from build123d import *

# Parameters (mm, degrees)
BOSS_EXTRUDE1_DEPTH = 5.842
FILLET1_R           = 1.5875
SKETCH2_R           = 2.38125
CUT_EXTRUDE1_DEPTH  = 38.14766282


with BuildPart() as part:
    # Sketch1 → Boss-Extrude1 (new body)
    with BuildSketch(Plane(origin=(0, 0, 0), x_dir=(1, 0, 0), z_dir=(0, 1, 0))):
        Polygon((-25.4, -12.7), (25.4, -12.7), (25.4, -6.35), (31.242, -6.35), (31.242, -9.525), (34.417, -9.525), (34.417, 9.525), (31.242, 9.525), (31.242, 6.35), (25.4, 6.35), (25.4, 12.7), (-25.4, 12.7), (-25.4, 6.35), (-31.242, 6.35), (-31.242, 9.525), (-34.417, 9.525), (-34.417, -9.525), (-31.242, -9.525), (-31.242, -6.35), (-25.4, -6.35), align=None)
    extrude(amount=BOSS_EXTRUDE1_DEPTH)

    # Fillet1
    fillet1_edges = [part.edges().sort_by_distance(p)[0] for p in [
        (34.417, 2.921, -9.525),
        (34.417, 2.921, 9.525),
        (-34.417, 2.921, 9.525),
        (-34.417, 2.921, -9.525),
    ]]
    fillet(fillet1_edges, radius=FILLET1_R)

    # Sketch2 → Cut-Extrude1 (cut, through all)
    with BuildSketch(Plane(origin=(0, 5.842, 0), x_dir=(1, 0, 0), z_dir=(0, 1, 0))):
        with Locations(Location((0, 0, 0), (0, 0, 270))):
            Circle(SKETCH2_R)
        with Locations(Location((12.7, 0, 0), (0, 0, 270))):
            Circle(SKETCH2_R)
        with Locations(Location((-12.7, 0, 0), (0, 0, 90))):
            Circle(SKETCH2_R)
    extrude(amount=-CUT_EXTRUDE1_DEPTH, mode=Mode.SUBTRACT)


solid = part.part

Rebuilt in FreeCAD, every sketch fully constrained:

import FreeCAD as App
import Part
import Sketcher
Q = App.Units.Quantity


def edges_at(feature, points):
    """Names of the edges that pass closest to the given points."""
    edges = feature.Shape.Edges
    near = lambda p: min(range(len(edges)), key=lambda i: edges[i].distToShape(Part.Vertex(*p))[0])
    return sorted({f"Edge{near(p) + 1}" for p in points})


def add_polygon(sketch, points):
    """Adds a closed chain of lines whose ends are joined by coincident constraints."""
    first, n = sketch.GeometryCount, len(points)
    for a, b in zip(points, points[1:] + points[:1]):
        sketch.addGeometry(Part.LineSegment(App.Vector(*a, 0), App.Vector(*b, 0)), False)
    for i in range(n):
        sketch.addConstraint(Sketcher.Constraint("Coincident", first + i, 2, first + (i + 1) % n, 1))

doc = App.newDocument("Part")
body = doc.addObject("PartDesign::Body", "Body")

# Sketch on XZ plane
sketch1 = doc.addObject("Sketcher::SketchObject", "Sketch")
body.addObject(sketch1)
sketch1.AttachmentSupport = (doc.XZ_Plane, [""])
sketch1.MapMode = "FlatFace"
add_polygon(sketch1, [(-25.4, 12.7), (25.4, 12.7), (25.4, 6.3), (31.2, 6.3), (31.2, 9.5), (34.4, 9.5), (34.4, -9.5), (31.2, -9.5), (31.2, -6.3), (25.4, -6.3), (25.4, -12.7), (-25.4, -12.7), (-25.4, -6.3), (-31.2, -6.3), (-31.2, -9.5), (-34.4, -9.5), (-34.4, 9.5), (-31.2, 9.5), (-31.2, 6.3), (-25.4, 6.3)])  # lines 0-19
sketch1.addConstraint([
    Sketcher.Constraint("Horizontal", 0),
    Sketcher.Constraint("Vertical", 1),
    Sketcher.Constraint("Horizontal", 2),
    Sketcher.Constraint("Vertical", 3),
    Sketcher.Constraint("Horizontal", 4),
    Sketcher.Constraint("Vertical", 5),
    Sketcher.Constraint("Horizontal", 6),
    Sketcher.Constraint("Vertical", 7),
    Sketcher.Constraint("Horizontal", 8),
    Sketcher.Constraint("Vertical", 9),
    Sketcher.Constraint("Horizontal", 10),
    Sketcher.Constraint("Vertical", 11),
    Sketcher.Constraint("Horizontal", 12),
    Sketcher.Constraint("Vertical", 13),
    Sketcher.Constraint("Horizontal", 14),
    Sketcher.Constraint("Vertical", 15),
    Sketcher.Constraint("Horizontal", 16),
    Sketcher.Constraint("Vertical", 17),
    Sketcher.Constraint("Horizontal", 18),
    Sketcher.Constraint("Vertical", 19),
    Sketcher.Constraint("Symmetric", 0, 2, 10, 2, -1, 1),
    Sketcher.Constraint("Symmetric", 2, 2, 12, 2, -1, 1),
    Sketcher.Constraint("Symmetric", 4, 2, 14, 2, -1, 1),
    Sketcher.Constraint("Symmetric", 6, 2, 16, 2, -1, 1),
    Sketcher.Constraint("Symmetric", 8, 2, 18, 2, -1, 1),
    Sketcher.Constraint("Symmetric", 8, 2, 11, 2, -2),
    Sketcher.Constraint("Symmetric", 6, 2, 13, 2, -2),
    Sketcher.Constraint("Equal", 16, 3),
    Sketcher.Constraint("DistanceX", 0, 1, 0, 2, Q("2 in")),
    Sketcher.Constraint("DistanceY", 10, 2, 0, 2, Q("1 in")),
    Sketcher.Constraint("DistanceX", 2, 1, 2, 2, Q("0.23 in")),
    Sketcher.Constraint("DistanceY", 1, 2, 1, 1, Q("0.25 in")),
    Sketcher.Constraint("DistanceY", 5, 2, 5, 1, Q("0.75 in")),
])
pad1 = doc.addObject("PartDesign::Pad", "Pad")
body.addObject(pad1)
pad1.Profile = sketch1
pad1.Length = Q("0.23 in")
pad1.Reversed = True
doc.recompute()

fillet = doc.addObject("PartDesign::Fillet", "Fillet")
body.addObject(fillet)
fillet.Base = (pad1, edges_at(pad1, [
    (34.417, 2.921, -9.525),
    (34.417, 2.921, 9.525),
    (-34.417, 2.921, 9.525),
    (-34.417, 2.921, -9.525),
]))
fillet.Radius = Q("0.0625 in")

# Sketch on XZ plane
sketch2 = doc.addObject("Sketcher::SketchObject", "Sketch001")
body.addObject(sketch2)
sketch2.AttachmentSupport = (doc.XZ_Plane, [""])
sketch2.MapMode = "FlatFace"
sketch2.AttachmentOffset = App.Placement(App.Vector(0, 0, -0.23 * 25.4), App.Rotation())
sketch2.addGeometry([
    Part.Circle(App.Vector(0, 0, 0), App.Vector(0, 0, 1), 2.4),
    Part.Circle(App.Vector(12.7, 0, 0), App.Vector(0, 0, 1), 2.4),
    Part.Circle(App.Vector(-12.7, 0, 0), App.Vector(0, 0, 1), 2.4),
], False)
sketch2.addConstraint([
    Sketcher.Constraint("Coincident", 0, 3, -1, 1),
    Sketcher.Constraint("Equal", 0, 1),
    Sketcher.Constraint("Equal", 1, 2),
    Sketcher.Constraint("Symmetric", 1, 3, 2, 3, -1, 1),
    Sketcher.Constraint("PointOnObject", 1, 3, -1),
    Sketcher.Constraint("Diameter", 0, Q("0.1875 in")),
    Sketcher.Constraint("DistanceX", 2, 3, 1, 3, Q("1 in")),
])
pocket1 = doc.addObject("PartDesign::Pocket", "Pocket")
body.addObject(pocket1)
pocket1.Profile = sketch2
pocket1.Type = "ThroughAll"
pocket1.Reversed = True

doc.recompute()
